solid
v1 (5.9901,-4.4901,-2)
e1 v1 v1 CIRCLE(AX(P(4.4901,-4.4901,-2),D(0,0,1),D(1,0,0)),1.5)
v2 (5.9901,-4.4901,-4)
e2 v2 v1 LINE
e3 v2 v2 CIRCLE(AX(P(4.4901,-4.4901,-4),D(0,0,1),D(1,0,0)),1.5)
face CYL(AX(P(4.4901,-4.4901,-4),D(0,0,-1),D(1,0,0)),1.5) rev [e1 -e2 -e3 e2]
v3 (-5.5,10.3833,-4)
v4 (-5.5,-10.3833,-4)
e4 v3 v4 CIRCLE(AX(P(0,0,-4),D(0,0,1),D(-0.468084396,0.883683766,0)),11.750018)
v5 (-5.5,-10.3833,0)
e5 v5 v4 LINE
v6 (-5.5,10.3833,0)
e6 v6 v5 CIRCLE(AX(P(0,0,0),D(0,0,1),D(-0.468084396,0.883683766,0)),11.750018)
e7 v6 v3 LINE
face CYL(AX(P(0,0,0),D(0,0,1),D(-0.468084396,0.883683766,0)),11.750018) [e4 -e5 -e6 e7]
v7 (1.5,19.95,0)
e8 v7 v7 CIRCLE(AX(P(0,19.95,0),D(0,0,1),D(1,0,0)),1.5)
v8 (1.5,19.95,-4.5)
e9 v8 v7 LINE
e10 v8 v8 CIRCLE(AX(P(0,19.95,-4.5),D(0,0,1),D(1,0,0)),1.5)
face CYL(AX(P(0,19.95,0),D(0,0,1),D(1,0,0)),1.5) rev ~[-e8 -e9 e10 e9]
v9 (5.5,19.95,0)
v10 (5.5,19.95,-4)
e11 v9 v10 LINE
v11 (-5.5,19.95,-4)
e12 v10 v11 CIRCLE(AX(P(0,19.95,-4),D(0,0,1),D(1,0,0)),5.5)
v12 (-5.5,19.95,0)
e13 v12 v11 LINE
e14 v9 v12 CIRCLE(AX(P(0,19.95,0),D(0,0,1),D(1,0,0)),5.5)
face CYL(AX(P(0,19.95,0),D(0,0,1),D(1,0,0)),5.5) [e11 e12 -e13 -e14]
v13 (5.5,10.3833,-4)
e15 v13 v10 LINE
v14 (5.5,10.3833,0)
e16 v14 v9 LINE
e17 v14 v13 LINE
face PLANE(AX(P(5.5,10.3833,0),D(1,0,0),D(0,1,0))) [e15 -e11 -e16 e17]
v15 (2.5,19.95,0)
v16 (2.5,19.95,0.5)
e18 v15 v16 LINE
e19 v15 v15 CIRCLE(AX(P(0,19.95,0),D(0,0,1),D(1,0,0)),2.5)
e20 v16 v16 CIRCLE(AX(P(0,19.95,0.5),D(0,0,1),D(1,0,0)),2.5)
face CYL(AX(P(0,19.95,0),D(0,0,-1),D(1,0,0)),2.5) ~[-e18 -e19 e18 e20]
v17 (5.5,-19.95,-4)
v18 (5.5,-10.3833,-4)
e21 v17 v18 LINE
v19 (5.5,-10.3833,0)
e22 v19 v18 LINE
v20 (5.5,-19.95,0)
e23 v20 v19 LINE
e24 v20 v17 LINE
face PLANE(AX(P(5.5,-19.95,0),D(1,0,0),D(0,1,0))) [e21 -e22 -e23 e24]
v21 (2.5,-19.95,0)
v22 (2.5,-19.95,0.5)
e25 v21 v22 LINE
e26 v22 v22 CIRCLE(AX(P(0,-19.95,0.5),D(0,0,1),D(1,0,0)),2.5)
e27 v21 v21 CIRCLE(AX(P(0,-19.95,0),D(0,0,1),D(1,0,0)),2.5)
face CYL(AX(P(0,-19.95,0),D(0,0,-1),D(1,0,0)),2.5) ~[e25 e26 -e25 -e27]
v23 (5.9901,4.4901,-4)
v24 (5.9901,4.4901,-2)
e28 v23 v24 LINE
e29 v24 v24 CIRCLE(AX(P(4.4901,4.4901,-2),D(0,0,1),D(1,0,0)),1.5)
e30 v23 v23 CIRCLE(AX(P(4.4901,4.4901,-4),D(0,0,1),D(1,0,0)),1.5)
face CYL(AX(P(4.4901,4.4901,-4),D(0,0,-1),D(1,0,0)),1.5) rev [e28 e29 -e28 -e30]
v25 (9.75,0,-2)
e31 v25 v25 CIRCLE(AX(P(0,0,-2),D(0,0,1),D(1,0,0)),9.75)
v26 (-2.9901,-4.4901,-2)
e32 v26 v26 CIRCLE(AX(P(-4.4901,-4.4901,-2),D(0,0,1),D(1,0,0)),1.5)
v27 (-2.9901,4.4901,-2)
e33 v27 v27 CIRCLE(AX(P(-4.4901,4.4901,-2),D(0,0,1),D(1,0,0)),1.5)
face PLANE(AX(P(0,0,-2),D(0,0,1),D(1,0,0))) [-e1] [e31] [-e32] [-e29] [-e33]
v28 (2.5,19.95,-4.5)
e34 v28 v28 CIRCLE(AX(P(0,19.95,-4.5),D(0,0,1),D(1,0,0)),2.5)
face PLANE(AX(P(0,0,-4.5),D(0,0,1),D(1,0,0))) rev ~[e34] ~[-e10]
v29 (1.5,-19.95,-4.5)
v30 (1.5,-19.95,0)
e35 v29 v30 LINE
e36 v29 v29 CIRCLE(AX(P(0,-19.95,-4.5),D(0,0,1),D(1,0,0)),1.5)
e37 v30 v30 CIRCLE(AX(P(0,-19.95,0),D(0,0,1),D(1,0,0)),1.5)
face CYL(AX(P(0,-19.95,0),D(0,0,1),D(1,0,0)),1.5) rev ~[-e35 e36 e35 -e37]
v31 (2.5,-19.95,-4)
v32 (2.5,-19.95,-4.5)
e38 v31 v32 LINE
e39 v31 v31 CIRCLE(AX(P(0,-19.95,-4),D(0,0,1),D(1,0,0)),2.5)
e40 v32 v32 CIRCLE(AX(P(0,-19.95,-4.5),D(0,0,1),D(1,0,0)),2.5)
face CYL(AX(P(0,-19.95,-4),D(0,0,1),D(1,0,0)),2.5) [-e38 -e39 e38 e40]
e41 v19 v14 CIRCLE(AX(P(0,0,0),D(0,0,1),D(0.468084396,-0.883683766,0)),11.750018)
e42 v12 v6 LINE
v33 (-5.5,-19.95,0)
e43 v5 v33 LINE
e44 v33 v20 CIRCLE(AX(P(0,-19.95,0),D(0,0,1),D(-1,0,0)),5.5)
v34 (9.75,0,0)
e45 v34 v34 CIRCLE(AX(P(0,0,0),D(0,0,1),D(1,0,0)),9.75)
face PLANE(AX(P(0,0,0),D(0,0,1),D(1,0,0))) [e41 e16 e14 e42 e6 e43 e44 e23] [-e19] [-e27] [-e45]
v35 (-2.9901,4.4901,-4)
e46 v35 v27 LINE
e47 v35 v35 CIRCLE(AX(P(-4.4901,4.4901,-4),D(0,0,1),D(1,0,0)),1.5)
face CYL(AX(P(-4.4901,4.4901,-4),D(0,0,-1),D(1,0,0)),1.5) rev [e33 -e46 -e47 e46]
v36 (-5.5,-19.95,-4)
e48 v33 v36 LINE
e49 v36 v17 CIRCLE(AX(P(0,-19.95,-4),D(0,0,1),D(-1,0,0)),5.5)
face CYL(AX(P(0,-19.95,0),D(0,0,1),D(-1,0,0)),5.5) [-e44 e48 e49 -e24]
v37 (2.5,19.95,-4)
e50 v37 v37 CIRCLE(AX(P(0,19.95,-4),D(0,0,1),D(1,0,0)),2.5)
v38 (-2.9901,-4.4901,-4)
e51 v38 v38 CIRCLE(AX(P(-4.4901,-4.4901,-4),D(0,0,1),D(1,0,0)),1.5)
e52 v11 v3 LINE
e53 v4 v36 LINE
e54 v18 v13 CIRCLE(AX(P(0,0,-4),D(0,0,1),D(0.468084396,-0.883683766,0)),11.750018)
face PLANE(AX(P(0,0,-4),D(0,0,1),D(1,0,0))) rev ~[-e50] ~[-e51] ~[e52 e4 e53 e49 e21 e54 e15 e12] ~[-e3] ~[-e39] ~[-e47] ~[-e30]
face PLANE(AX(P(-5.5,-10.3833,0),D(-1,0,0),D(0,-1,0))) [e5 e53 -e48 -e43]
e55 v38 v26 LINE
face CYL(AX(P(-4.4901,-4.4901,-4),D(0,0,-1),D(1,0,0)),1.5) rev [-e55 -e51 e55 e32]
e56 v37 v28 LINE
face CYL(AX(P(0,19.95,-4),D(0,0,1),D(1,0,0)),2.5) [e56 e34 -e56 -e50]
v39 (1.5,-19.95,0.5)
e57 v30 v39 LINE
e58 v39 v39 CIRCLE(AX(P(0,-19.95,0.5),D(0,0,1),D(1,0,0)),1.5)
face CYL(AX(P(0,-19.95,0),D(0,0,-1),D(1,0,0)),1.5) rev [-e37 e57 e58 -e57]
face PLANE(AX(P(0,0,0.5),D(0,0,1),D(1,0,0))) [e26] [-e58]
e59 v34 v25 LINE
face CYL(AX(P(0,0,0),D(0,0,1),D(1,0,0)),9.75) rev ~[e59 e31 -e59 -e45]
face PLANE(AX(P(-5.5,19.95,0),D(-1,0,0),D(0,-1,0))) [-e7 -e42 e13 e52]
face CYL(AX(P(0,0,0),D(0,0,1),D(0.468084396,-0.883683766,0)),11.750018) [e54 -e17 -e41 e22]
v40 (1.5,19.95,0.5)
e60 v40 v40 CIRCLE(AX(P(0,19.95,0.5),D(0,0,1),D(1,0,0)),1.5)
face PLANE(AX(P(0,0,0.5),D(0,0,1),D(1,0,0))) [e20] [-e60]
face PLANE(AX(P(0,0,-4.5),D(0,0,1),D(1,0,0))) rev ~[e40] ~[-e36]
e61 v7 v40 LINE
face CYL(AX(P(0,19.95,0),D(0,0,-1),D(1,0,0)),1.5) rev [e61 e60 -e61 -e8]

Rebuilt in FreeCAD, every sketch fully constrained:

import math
import FreeCAD as App
import Part
import Sketcher

V = App.Vector
Q = App.Units.Quantity

doc = App.newDocument("Part")
body = doc.addObject("PartDesign::Body", "Body")

sketch1 = body.newObject("Sketcher::SketchObject", "Sketch")
sketch1.AttachmentSupport = (doc.getObject("XY_Plane"), [""])
sketch1.MapMode = "FlatFace"
sketch1.addGeometry([
    Part.LineSegment(V(-5.5, -10.4, 0), V(-5.5, -19.9, 0)),
    Part.ArcOfCircle(Part.Circle(V(0, -19.9, 0), V(0, 0, 1), 5.5), math.radians(180), math.radians(360)),
    Part.LineSegment(V(5.5, -19.9, 0), V(5.5, -10.4, 0)),
    Part.ArcOfCircle(Part.Circle(V(0, 0, 0), V(0, 0, 1), 11.8), math.radians(-62), math.radians(62)),
    Part.LineSegment(V(5.5, 10.4, 0), V(5.5, 19.9, 0)),
    Part.ArcOfCircle(Part.Circle(V(0, 19.9, 0), V(0, 0, 1), 5.5), math.radians(0), math.radians(180)),
    Part.LineSegment(V(-5.5, 19.9, 0), V(-5.5, 10.4, 0)),
    Part.ArcOfCircle(Part.Circle(V(0, 0, 0), V(0, 0, 1), 11.8), math.radians(118), math.radians(242)),
    Part.Circle(V(0, 0, 0), V(0, 0, 1), 9.8),
    Part.Circle(V(0, -19.9, 0), V(0, 0, 1), 1.5),
    Part.Circle(V(0, 19.9, 0), V(0, 0, 1), 1.5),
], False)
sketch1.addConstraint([
    Sketcher.Constraint("Tangent", 0, 2, 1, 1),
    Sketcher.Constraint("Tangent", 1, 2, 2, 1),
    Sketcher.Constraint("Coincident", 2, 2, 3, 1),
    Sketcher.Constraint("Coincident", 3, 2, 4, 1),
    Sketcher.Constraint("Tangent", 4, 2, 5, 1),
    Sketcher.Constraint("Tangent", 5, 2, 6, 1),
    Sketcher.Constraint("Coincident", 6, 2, 7, 1),
    Sketcher.Constraint("Coincident", 7, 2, 0, 1),
    Sketcher.Constraint("Vertical", 0),
    Sketcher.Constraint("Vertical", 2),
    Sketcher.Constraint("Vertical", 4),
    Sketcher.Constraint("Vertical", 6),
    Sketcher.Constraint("Coincident", 3, 3, -1, 1),
    Sketcher.Constraint("Coincident", 7, 3, -1, 1),
    Sketcher.Constraint("Coincident", 8, 3, -1, 1),
    Sketcher.Constraint("Coincident", 9, 3, 1, 3),
    Sketcher.Constraint("Coincident", 10, 3, 5, 3),
    Sketcher.Constraint("Equal", 1, 5),
    Sketcher.Constraint("Equal", 3, 7),
    Sketcher.Constraint("Equal", 9, 10),
    Sketcher.Constraint("Symmetric", 1, 3, 5, 3, -1, 1),
    Sketcher.Constraint("PointOnObject", 1, 3, -2),
    Sketcher.Constraint("Diameter", 9, Q("3 mm")),
    Sketcher.Constraint("Diameter", 8, Q("19.5 mm")),
    Sketcher.Constraint("Radius", 1, Q("5.5 mm")),
    Sketcher.Constraint("Radius", 3, Q("11.75 mm")),
    Sketcher.Constraint("DistanceY", 1, 3, 5, 3, Q("39.9 mm")),
])
pad1 = body.newObject("PartDesign::Pad", "Pad")
pad1.Profile = sketch1
pad1.Length = 4
pad1.Reversed = True

sketch2 = body.newObject("Sketcher::SketchObject", "Sketch001")
sketch2.AttachmentSupport = (doc.getObject("XY_Plane"), [""])
sketch2.MapMode = "FlatFace"
sketch2.AttachmentOffset = App.Placement(V(0, 0, -4), App.Rotation())
sketch2.addGeometry([
    Part.Circle(V(0, 19.9, 0), V(0, 0, 1), 2.5),
    Part.Circle(V(0, 19.9, 0), V(0, 0, 1), 1.5),
    Part.Circle(V(0, -19.9, 0), V(0, 0, 1), 2.5),
    Part.Circle(V(0, -19.9, 0), V(0, 0, 1), 1.5),
], False)
sketch2.addConstraint([
    Sketcher.Constraint("Coincident", 1, 3, 0, 3),
    Sketcher.Constraint("Coincident", 3, 3, 2, 3),
    Sketcher.Constraint("Equal", 0, 2),
    Sketcher.Constraint("Equal", 1, 3),
    Sketcher.Constraint("Symmetric", 0, 3, 2, 3, -1, 1),
    Sketcher.Constraint("PointOnObject", 0, 3, -2),
    Sketcher.Constraint("Diameter", 1, Q("3 mm")),
    Sketcher.Constraint("Diameter", 0, Q("5 mm")),
    Sketcher.Constraint("DistanceY", 2, 3, 0, 3, Q("39.9 mm")),
])
pad2 = body.newObject("PartDesign::Pad", "Pad001")
pad2.Profile = sketch2
pad2.Length = 0.5
pad2.Reversed = True

sketch3 = body.newObject("Sketcher::SketchObject", "Sketch002")
sketch3.AttachmentSupport = (doc.getObject("XY_Plane"), [""])
sketch3.MapMode = "FlatFace"
sketch3.AttachmentOffset = App.Placement(V(0, 0, -4), App.Rotation())
sketch3.addGeometry([
    Part.Circle(V(0, 0, 0), V(0, 0, 1), 9.8),
    Part.Circle(V(-4.5, -4.5, 0), V(0, 0, 1), 1.5),
    Part.Circle(V(4.5, -4.5, 0), V(0, 0, 1), 1.5),
    Part.Circle(V(-4.5, 4.5, 0), V(0, 0, 1), 1.5),
    Part.Circle(V(4.5, 4.5, 0), V(0, 0, 1), 1.5),
], False)
sketch3.addConstraint([
    Sketcher.Constraint("Coincident", 0, 3, -1, 1),
    Sketcher.Constraint("Equal", 1, 2),
    Sketcher.Constraint("Equal", 2, 3),
    Sketcher.Constraint("Equal", 3, 4),
    Sketcher.Constraint("Symmetric", 2, 3, 3, 3, -1, 1),
    Sketcher.Constraint("Symmetric", 1, 3, 4, 3, -1, 1),
    Sketcher.Constraint("Symmetric", 1, 3, 2, 3, -2),
    Sketcher.Constraint("Diameter", 1, Q("3 mm")),
    Sketcher.Constraint("Diameter", 0, Q("19.5 mm")),
    Sketcher.Constraint("DistanceX", 1, 3, -1, 1, Q("4.49 mm")),
    Sketcher.Constraint("DistanceY", 1, 3, -1, 1, Q("4.49 mm")),
])
pad3 = body.newObject("PartDesign::Pad", "Pad002")
pad3.Profile = sketch3
pad3.Length = 2

sketch4 = body.newObject("Sketcher::SketchObject", "Sketch003")
sketch4.AttachmentSupport = (doc.getObject("XY_Plane"), [""])
sketch4.MapMode = "FlatFace"
sketch4.addGeometry([
    Part.Circle(V(0, 19.9, 0), V(0, 0, 1), 2.5),
    Part.Circle(V(0, 19.9, 0), V(0, 0, 1), 1.5),
    Part.Circle(V(0, -19.9, 0), V(0, 0, 1), 2.5),
    Part.Circle(V(0, -19.9, 0), V(0, 0, 1), 1.5),
], False)
sketch4.addConstraint([
    Sketcher.Constraint("Coincident", 1, 3, 0, 3),
    Sketcher.Constraint("Coincident", 3, 3, 2, 3),
    Sketcher.Constraint("Equal", 0, 2),
    Sketcher.Constraint("Equal", 1, 3),
    Sketcher.Constraint("Symmetric", 0, 3, 2, 3, -1, 1),
    Sketcher.Constraint("PointOnObject", 0, 3, -2),
    Sketcher.Constraint("Diameter", 1, Q("3 mm")),
    Sketcher.Constraint("Diameter", 0, Q("5 mm")),
    Sketcher.Constraint("DistanceY", 2, 3, 0, 3, Q("39.9 mm")),
])
pad4 = body.newObject("PartDesign::Pad", "Pad003")
pad4.Profile = sketch4
pad4.Length = 0.5

doc.recompute()
